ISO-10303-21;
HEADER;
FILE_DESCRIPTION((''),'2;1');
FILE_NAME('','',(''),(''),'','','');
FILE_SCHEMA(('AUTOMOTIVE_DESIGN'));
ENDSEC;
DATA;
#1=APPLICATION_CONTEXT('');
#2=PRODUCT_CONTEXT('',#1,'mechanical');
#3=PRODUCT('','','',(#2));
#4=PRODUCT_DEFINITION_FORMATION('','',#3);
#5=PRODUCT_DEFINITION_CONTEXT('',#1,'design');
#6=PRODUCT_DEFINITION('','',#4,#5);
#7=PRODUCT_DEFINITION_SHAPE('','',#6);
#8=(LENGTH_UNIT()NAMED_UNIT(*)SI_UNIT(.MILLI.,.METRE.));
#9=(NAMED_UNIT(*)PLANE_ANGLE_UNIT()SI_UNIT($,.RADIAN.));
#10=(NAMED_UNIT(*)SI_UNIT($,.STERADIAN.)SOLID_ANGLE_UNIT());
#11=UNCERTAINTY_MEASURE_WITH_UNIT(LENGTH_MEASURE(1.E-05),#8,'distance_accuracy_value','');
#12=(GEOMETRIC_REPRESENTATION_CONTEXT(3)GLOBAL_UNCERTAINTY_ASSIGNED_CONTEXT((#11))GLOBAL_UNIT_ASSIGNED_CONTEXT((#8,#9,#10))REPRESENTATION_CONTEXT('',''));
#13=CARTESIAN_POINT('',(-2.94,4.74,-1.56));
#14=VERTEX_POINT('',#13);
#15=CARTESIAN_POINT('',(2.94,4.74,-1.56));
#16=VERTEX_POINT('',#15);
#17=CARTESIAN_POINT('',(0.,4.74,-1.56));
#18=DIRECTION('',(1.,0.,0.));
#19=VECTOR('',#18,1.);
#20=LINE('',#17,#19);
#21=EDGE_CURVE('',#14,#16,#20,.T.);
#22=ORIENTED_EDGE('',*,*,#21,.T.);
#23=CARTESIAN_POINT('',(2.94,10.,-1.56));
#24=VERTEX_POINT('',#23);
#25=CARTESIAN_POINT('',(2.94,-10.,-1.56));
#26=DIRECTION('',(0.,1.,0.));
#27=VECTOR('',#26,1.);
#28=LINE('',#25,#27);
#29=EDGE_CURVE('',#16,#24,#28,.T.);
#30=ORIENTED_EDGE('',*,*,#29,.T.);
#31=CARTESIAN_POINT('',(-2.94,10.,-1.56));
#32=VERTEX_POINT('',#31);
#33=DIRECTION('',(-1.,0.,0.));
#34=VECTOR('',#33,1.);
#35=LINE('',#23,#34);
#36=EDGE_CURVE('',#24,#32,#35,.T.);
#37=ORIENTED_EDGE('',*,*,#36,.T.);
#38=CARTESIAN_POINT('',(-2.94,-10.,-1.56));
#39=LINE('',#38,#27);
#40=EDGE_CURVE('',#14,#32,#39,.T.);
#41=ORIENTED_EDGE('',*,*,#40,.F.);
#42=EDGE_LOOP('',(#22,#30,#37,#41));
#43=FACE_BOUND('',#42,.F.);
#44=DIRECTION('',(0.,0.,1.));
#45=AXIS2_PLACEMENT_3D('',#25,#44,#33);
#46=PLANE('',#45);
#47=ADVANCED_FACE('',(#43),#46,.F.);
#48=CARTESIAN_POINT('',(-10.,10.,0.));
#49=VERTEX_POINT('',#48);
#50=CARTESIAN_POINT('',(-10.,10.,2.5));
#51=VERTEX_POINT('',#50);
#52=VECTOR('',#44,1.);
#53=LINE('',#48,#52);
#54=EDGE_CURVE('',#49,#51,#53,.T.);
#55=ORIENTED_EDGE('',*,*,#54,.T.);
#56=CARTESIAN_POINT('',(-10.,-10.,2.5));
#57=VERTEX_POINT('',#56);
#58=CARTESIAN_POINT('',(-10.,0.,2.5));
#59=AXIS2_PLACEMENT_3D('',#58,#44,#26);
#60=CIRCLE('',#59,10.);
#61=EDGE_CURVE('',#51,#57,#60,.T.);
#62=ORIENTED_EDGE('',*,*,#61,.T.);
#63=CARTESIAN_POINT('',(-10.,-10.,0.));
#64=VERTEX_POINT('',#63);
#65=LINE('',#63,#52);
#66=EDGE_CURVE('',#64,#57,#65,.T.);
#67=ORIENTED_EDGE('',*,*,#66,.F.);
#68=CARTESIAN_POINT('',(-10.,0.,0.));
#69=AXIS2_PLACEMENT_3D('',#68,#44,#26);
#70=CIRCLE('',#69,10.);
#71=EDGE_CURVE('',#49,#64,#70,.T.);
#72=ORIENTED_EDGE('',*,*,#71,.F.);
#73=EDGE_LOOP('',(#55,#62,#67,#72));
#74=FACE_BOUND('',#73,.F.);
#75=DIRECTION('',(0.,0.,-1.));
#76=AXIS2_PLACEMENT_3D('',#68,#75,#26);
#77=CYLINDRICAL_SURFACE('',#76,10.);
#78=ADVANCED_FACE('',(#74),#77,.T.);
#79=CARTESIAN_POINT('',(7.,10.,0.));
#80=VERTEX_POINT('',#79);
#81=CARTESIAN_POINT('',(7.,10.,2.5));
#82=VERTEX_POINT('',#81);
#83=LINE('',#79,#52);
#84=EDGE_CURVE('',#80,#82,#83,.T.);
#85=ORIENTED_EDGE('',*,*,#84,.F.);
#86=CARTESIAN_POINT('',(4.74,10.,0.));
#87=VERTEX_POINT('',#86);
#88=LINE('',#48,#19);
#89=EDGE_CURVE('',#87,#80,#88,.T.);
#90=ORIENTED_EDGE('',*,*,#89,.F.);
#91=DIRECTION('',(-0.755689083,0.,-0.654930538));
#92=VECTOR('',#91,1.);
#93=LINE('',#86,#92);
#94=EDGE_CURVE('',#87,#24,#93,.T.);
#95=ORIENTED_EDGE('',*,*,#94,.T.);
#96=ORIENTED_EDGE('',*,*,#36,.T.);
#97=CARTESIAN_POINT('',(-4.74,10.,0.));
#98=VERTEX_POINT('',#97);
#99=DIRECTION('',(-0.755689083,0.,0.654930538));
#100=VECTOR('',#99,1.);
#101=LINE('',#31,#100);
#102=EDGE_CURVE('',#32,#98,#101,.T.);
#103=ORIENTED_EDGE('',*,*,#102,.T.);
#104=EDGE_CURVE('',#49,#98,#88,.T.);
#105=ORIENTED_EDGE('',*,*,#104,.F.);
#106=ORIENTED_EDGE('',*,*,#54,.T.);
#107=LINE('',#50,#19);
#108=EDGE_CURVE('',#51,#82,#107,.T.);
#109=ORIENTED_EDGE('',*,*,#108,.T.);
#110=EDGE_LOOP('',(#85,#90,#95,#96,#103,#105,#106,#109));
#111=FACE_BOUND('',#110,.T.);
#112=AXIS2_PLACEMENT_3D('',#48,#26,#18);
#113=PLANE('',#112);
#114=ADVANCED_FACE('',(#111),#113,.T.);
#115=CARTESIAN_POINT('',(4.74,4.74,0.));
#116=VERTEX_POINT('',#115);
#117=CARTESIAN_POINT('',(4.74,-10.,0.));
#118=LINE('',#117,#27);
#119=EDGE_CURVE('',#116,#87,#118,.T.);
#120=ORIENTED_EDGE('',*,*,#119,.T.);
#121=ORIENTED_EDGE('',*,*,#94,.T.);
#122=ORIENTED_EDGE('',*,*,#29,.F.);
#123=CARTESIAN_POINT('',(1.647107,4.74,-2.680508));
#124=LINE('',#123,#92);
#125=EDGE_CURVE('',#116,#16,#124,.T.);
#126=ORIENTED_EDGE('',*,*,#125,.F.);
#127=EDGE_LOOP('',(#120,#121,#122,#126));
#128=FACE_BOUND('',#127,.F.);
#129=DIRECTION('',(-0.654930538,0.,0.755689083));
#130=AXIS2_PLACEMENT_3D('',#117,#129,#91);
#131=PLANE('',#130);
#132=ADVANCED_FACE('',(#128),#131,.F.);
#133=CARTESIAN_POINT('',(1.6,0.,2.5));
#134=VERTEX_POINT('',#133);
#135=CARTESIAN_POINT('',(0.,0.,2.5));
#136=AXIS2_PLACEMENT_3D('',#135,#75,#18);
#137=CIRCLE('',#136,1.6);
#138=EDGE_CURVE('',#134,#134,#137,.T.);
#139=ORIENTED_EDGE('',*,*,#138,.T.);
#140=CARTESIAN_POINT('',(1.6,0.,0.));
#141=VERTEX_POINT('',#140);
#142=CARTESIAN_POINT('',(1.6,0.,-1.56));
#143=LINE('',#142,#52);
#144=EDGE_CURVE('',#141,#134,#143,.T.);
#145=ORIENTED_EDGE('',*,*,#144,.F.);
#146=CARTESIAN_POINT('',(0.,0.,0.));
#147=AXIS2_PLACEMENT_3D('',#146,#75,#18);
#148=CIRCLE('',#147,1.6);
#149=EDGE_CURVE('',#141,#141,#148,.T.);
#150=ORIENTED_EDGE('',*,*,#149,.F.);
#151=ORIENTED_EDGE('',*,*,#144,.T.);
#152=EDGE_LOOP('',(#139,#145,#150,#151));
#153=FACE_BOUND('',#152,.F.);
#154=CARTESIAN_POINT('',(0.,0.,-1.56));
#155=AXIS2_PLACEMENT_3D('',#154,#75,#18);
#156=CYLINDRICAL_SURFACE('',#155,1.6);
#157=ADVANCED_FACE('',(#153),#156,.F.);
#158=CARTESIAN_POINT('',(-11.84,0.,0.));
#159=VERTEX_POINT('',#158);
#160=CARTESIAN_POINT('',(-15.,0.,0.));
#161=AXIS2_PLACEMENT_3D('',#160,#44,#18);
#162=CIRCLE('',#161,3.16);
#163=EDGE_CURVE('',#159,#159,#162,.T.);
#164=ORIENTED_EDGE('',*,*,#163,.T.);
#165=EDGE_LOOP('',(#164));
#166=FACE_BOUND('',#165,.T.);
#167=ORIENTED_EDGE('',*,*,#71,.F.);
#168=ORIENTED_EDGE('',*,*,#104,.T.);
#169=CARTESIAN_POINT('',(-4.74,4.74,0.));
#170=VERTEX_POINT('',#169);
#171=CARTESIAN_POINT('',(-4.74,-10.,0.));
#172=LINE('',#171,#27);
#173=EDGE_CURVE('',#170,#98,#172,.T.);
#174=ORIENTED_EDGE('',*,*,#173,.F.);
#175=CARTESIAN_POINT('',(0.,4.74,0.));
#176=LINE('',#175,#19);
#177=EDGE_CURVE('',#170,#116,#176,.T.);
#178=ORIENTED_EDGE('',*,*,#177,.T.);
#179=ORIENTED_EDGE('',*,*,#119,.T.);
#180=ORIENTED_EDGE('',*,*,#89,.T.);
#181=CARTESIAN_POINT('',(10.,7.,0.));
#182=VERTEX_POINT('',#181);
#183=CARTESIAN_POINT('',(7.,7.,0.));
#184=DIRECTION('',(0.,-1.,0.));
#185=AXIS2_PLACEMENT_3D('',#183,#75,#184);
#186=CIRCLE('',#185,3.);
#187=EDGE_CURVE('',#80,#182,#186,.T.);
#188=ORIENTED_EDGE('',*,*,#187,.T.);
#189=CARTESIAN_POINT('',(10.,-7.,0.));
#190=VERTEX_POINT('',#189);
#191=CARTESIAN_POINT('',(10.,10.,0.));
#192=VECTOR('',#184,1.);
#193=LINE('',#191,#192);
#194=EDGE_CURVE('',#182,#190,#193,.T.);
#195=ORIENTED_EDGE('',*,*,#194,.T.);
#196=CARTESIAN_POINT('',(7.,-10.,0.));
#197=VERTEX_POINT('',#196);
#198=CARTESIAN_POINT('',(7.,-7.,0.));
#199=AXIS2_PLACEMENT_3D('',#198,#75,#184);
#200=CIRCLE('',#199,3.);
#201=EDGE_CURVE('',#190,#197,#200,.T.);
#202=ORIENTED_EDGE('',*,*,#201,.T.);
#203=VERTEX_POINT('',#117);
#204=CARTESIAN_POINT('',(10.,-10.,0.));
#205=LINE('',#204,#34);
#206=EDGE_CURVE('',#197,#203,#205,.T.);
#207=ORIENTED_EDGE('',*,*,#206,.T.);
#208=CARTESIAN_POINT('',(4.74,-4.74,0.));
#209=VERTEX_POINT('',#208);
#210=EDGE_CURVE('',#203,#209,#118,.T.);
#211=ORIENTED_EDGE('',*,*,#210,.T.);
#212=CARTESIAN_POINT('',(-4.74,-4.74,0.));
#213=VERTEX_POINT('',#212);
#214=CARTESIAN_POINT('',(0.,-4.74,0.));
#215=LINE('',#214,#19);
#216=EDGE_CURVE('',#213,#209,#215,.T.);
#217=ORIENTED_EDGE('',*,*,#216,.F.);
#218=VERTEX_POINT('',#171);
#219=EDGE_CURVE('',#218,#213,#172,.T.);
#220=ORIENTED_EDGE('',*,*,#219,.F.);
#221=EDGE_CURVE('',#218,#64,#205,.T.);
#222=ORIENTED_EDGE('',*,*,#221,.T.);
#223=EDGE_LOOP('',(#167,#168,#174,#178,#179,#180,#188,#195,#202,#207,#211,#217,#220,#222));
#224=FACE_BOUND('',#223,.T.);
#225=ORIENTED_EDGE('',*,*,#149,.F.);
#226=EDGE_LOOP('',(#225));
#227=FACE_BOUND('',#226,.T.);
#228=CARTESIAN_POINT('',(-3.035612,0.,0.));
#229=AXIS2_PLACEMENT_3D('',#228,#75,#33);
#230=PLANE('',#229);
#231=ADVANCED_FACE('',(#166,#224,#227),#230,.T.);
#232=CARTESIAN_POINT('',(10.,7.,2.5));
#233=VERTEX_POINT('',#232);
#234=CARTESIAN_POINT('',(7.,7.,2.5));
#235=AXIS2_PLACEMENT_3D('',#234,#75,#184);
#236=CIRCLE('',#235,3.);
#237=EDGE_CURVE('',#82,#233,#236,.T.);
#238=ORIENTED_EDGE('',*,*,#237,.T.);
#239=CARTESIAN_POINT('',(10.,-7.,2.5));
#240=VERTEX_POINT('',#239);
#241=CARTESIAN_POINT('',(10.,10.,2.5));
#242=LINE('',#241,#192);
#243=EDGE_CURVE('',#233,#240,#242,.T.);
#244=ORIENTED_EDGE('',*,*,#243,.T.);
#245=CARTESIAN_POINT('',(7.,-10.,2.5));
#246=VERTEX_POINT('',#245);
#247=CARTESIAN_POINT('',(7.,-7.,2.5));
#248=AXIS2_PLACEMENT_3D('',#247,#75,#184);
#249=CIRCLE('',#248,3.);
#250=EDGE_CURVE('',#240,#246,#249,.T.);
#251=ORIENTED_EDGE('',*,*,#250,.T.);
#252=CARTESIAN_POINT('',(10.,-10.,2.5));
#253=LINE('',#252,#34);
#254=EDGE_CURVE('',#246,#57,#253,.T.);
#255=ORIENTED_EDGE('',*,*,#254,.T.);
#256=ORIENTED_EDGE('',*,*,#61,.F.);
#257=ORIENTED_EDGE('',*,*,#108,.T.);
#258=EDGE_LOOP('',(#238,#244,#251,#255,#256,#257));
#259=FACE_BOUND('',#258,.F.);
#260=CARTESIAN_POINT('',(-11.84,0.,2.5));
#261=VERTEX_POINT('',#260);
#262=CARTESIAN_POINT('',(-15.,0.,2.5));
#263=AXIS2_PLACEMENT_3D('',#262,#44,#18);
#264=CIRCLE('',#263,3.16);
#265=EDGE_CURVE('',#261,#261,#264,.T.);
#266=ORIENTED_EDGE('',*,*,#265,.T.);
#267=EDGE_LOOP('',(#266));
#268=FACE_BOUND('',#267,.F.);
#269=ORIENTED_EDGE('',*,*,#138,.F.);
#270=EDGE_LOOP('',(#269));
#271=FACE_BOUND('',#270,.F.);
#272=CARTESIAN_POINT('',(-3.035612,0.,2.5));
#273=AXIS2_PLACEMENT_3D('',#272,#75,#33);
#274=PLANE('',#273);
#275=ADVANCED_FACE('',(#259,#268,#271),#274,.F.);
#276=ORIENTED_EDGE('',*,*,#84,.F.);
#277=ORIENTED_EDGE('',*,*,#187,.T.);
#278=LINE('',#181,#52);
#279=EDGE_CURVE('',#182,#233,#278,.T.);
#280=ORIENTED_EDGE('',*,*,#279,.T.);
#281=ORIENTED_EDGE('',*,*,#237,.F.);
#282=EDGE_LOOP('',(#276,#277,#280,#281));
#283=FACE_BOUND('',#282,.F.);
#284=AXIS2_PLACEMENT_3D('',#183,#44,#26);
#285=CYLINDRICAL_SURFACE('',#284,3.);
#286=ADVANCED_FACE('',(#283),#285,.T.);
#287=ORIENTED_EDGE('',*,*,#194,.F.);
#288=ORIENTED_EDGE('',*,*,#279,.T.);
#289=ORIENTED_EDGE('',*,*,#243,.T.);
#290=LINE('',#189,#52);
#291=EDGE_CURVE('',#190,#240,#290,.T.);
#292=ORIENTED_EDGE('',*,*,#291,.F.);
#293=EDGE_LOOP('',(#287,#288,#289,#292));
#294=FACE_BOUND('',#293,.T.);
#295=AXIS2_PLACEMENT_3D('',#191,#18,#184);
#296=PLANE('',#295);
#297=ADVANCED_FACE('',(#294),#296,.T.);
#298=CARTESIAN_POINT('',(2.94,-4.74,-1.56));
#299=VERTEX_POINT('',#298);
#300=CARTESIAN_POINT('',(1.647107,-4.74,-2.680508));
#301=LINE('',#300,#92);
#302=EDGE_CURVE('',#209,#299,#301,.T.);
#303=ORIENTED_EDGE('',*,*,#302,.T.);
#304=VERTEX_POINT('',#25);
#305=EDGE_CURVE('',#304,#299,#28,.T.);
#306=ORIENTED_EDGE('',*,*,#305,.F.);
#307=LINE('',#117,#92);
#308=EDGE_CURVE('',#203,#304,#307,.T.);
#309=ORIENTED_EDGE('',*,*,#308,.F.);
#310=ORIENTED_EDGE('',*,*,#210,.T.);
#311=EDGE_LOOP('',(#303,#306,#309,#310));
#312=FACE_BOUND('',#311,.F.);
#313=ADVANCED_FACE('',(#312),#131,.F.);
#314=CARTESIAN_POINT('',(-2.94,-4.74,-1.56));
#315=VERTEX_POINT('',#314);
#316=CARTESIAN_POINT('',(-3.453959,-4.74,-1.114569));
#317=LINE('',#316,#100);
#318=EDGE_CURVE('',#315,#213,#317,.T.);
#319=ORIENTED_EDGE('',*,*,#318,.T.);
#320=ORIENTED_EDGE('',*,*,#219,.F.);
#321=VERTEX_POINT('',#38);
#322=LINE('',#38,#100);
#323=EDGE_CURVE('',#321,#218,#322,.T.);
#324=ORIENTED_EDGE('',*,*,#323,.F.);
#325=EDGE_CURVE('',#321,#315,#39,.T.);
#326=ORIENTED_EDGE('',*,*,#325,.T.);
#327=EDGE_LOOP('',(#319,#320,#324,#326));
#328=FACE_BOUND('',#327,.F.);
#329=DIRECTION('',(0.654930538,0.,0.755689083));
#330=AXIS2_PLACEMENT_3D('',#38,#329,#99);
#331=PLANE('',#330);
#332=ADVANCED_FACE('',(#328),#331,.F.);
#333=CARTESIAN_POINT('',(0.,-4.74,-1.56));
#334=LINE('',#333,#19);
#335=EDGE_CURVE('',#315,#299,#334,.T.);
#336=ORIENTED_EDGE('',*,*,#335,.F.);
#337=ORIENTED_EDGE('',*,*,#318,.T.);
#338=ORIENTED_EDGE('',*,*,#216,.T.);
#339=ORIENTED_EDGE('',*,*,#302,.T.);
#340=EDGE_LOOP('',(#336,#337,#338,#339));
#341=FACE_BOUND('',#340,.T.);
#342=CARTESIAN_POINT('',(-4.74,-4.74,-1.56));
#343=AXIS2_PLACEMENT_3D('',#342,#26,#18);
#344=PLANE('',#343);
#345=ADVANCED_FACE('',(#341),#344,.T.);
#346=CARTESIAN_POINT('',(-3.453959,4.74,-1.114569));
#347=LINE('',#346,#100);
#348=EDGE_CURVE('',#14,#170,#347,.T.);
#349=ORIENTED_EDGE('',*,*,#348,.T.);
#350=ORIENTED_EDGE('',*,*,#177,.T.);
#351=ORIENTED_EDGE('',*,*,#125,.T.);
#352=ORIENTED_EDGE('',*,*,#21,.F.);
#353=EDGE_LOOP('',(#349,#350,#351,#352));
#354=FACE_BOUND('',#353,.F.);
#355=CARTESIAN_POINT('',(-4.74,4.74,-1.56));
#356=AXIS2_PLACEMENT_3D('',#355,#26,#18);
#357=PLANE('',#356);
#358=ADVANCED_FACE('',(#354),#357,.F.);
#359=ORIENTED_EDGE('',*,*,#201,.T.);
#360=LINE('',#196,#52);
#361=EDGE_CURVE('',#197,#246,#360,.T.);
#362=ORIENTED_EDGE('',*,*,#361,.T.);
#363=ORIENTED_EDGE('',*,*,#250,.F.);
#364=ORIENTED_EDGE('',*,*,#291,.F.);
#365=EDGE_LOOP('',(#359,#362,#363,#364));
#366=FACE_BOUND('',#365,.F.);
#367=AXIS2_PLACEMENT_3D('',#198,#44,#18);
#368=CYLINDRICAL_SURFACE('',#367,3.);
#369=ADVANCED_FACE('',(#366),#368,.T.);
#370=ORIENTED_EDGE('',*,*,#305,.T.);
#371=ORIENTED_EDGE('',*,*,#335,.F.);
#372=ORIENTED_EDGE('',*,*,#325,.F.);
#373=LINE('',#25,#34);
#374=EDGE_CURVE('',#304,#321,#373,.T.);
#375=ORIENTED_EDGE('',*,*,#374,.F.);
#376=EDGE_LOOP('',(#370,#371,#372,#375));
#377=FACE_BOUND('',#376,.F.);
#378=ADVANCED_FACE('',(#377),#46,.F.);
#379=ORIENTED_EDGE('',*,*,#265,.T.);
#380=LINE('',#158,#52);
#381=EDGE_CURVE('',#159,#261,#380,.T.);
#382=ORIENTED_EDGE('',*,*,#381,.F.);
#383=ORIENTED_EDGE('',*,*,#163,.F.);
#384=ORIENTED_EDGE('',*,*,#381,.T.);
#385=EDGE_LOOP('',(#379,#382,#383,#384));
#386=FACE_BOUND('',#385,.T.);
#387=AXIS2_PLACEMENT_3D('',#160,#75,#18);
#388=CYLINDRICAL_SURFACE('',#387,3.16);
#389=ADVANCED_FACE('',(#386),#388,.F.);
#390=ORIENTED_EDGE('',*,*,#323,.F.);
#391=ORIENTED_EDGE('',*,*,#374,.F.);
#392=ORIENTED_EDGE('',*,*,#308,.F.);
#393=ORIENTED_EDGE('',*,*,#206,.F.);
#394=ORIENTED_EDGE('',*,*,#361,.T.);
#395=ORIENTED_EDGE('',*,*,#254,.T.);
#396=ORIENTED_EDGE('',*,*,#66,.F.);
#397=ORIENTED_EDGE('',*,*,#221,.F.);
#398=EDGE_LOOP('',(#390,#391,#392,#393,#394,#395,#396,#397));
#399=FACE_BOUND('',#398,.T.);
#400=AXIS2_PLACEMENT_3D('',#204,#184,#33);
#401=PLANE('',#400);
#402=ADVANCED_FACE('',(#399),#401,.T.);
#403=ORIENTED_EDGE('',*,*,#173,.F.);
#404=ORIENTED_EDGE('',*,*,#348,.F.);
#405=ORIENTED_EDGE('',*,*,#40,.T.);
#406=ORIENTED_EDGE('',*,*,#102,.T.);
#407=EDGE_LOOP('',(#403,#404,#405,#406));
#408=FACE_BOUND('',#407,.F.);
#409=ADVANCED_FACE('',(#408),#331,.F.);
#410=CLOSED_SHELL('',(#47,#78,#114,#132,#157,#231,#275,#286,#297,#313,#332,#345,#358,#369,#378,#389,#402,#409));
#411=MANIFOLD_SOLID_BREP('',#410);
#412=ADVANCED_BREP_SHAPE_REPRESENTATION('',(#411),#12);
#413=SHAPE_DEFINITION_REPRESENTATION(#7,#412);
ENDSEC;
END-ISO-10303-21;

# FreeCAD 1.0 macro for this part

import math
import FreeCAD as App
import Part
import Sketcher
from FreeCAD import Vector
Q = App.Units.Quantity


def edges_at(feature, points):
    """Names of the edges that pass closest to the given points."""
    edges = feature.Shape.Edges
    near = lambda p: min(range(len(edges)), key=lambda i: edges[i].distToShape(Part.Vertex(*p))[0])
    return sorted({f"Edge{near(p) + 1}" for p in points})


def add_polygon(sketch, points):
    """Adds a closed chain of lines whose ends are joined by coincident constraints."""
    first, n = sketch.GeometryCount, len(points)
    for a, b in zip(points, points[1:] + points[:1]):
        sketch.addGeometry(Part.LineSegment(App.Vector(*a, 0), App.Vector(*b, 0)), False)
    for i in range(n):
        sketch.addConstraint(Sketcher.Constraint("Coincident", first + i, 2, first + (i + 1) % n, 1))

doc = App.newDocument("Part")
params = doc.addObject("Spreadsheet::Sheet", "Params")
for row, (alias, value) in enumerate([
    ("sketch1_radius", "10 mm"),
    ("sketch1_diameter", "6.32 mm"),
    ("pad1_length", "2.5 mm"),
    ("sketch2_width", "9.48 mm"),
    ("sketch2_width2", "5.88 mm"),
    ("pad2_length", "20 mm"),
    ("sketch3_diameter", "3.2 mm"),
    ("fillet_radius", "3 mm"),
    ("sketch4_width", "9.48 mm"),
    ("pocket2_length", "1.56 mm"),
], start=1):
    params.set(f"A{row}", alias)
    params.set(f"B{row}", "=" + value)
    params.setAlias(f"B{row}", alias)

body = doc.addObject("PartDesign::Body", "Body")

# Sketch on XY plane
sketch1 = doc.addObject("Sketcher::SketchObject", "Sketch")
body.addObject(sketch1)
sketch1.AttachmentSupport = (doc.XY_Plane, [""])
sketch1.MapMode = "FlatFace"
sketch1.addGeometry([
    Part.LineSegment(Vector(10, 10, 0), Vector(-10, 10, 0)),  # 0
    Part.ArcOfCircle(Part.Circle(Vector(-10, 0, 0), Vector(0, 0, 1), 10), math.radians(90), math.radians(270)),  # 1
    Part.LineSegment(Vector(-10, -10, 0), Vector(10, -10, 0)),  # 2
    Part.LineSegment(Vector(10, -10, 0), Vector(10, 10, 0)),  # 3
    Part.Circle(Vector(-15, 0, 0), Vector(0, 0, 1), 3.2),  # 4
], False)
sketch1.addConstraint([
    Sketcher.Constraint("Tangent", 0, 2, 1, 1),
    Sketcher.Constraint("Tangent", 1, 2, 2, 1),
    Sketcher.Constraint("Coincident", 2, 2, 3, 1),
    Sketcher.Constraint("Coincident", 3, 2, 0, 1),
    Sketcher.Constraint("Horizontal", 0),
    Sketcher.Constraint("Horizontal", 2),
    Sketcher.Constraint("Vertical", 3),
    Sketcher.Constraint("Symmetric", 0, 2, 2, 2, -1, 1),
    Sketcher.Constraint("PointOnObject", 4, 3, -1),
    Sketcher.Constraint("Equal", 2, 3),
    Sketcher.Constraint("Radius", 1, Q("10 mm")),
    Sketcher.Constraint("Diameter", 4, Q("6.32 mm")),
    Sketcher.Constraint("DistanceX", 4, 3, -1, 1, Q("15 mm")),
])
sketch1.setExpression("Constraints[10]", "Params.sketch1_radius")
sketch1.setExpression("Constraints[11]", "Params.sketch1_diameter")
pad1 = doc.addObject("PartDesign::Pad", "Pad")
body.addObject(pad1)
pad1.Profile = sketch1
pad1.setExpression("Length", "Params.pad1_length")

# Sketch on XZ plane
sketch2 = doc.addObject("Sketcher::SketchObject", "Sketch001")
body.addObject(sketch2)
sketch2.AttachmentSupport = (doc.XZ_Plane, [""])
sketch2.MapMode = "FlatFace"
sketch2.AttachmentOffset = App.Placement(Vector(0, 0, 10), App.Rotation())
add_polygon(sketch2, [(4.7, 0), (-4.7, 0), (-2.9, -1.6), (2.9, -1.6)])  # lines 0-3
sketch2.addConstraint([
    Sketcher.Constraint("Horizontal", 0),
    Sketcher.Constraint("Horizontal", 2),
    Sketcher.Constraint("Symmetric", 0, 2, 3, 2, -1, 1),
    Sketcher.Constraint("Equal", 1, 3),
    Sketcher.Constraint("DistanceX", 0, 2, 0, 1, Q("9.48 mm")),
    Sketcher.Constraint("DistanceX", 2, 1, 2, 2, Q("5.88 mm")),
    Sketcher.Constraint("DistanceY", 1, 2, -1, 1, Q("1.56 mm")),
])
sketch2.setExpression("Constraints[8]", "Params.sketch2_width")
sketch2.setExpression("Constraints[9]", "Params.sketch2_width2")
pad2 = doc.addObject("PartDesign::Pad", "Pad001")
body.addObject(pad2)
pad2.Profile = sketch2
pad2.setExpression("Length", "Params.pad2_length")
pad2.Reversed = True

# Sketch on XY plane
sketch3 = doc.addObject("Sketcher::SketchObject", "Sketch002")
body.addObject(sketch3)
sketch3.AttachmentSupport = (doc.XY_Plane, [""])
sketch3.MapMode = "FlatFace"
sketch3.AttachmentOffset = App.Placement(Vector(0, 0, -1.56), App.Rotation())
sketch3.addGeometry(Part.Circle(Vector(0, 0, 0), Vector(0, 0, 1), 1.6), False)
sketch3.addConstraint([
    Sketcher.Constraint("Coincident", 0, 3, -1, 1),
    Sketcher.Constraint("Diameter", 0, Q("3.2 mm")),
])
sketch3.setExpression("Constraints[1]", "Params.sketch3_diameter")
pocket1 = doc.addObject("PartDesign::Pocket", "Pocket")
body.addObject(pocket1)
pocket1.Profile = sketch3
pocket1.Type = "ThroughAll"
pocket1.Reversed = True
doc.recompute()

fillet = doc.addObject("PartDesign::Fillet", "Fillet")
body.addObject(fillet)
fillet.Base = (pocket1, edges_at(pocket1, [(10, -10, 1.25), (10, 10, 1.25)]))
fillet.setExpression("Radius", "Params.fillet_radius")

# Sketch on XY plane
sketch4 = doc.addObject("Sketcher::SketchObject", "Sketch003")
body.addObject(sketch4)
sketch4.AttachmentSupport = (doc.XY_Plane, [""])
sketch4.MapMode = "FlatFace"
sketch4.AttachmentOffset = App.Placement(Vector(0, 0, -1.56), App.Rotation())
add_polygon(sketch4, [(-5, -5), (-5, 5), (5, 5), (5, -5)])  # lines 0-3
sketch4.addConstraint([
    Sketcher.Constraint("Vertical", 0),
    Sketcher.Constraint("Horizontal", 1),
    Sketcher.Constraint("Vertical", 2),
    Sketcher.Constraint("Horizontal", 3),
    Sketcher.Constraint("Symmetric", 0, 2, 2, 2, -1, 1),
    Sketcher.Constraint("Equal", 3, 0),
    Sketcher.Constraint("DistanceX", 1, 1, 1, 2, Q("9.48 mm")),
])
sketch4.setExpression("Constraints[10]", "Params.sketch4_width")
pocket2 = doc.addObject("PartDesign::Pocket", "Pocket001")
body.addObject(pocket2)
pocket2.Profile = sketch4
pocket2.setExpression("Length", "Params.pocket2_length")
pocket2.Reversed = True

doc.recompute()
